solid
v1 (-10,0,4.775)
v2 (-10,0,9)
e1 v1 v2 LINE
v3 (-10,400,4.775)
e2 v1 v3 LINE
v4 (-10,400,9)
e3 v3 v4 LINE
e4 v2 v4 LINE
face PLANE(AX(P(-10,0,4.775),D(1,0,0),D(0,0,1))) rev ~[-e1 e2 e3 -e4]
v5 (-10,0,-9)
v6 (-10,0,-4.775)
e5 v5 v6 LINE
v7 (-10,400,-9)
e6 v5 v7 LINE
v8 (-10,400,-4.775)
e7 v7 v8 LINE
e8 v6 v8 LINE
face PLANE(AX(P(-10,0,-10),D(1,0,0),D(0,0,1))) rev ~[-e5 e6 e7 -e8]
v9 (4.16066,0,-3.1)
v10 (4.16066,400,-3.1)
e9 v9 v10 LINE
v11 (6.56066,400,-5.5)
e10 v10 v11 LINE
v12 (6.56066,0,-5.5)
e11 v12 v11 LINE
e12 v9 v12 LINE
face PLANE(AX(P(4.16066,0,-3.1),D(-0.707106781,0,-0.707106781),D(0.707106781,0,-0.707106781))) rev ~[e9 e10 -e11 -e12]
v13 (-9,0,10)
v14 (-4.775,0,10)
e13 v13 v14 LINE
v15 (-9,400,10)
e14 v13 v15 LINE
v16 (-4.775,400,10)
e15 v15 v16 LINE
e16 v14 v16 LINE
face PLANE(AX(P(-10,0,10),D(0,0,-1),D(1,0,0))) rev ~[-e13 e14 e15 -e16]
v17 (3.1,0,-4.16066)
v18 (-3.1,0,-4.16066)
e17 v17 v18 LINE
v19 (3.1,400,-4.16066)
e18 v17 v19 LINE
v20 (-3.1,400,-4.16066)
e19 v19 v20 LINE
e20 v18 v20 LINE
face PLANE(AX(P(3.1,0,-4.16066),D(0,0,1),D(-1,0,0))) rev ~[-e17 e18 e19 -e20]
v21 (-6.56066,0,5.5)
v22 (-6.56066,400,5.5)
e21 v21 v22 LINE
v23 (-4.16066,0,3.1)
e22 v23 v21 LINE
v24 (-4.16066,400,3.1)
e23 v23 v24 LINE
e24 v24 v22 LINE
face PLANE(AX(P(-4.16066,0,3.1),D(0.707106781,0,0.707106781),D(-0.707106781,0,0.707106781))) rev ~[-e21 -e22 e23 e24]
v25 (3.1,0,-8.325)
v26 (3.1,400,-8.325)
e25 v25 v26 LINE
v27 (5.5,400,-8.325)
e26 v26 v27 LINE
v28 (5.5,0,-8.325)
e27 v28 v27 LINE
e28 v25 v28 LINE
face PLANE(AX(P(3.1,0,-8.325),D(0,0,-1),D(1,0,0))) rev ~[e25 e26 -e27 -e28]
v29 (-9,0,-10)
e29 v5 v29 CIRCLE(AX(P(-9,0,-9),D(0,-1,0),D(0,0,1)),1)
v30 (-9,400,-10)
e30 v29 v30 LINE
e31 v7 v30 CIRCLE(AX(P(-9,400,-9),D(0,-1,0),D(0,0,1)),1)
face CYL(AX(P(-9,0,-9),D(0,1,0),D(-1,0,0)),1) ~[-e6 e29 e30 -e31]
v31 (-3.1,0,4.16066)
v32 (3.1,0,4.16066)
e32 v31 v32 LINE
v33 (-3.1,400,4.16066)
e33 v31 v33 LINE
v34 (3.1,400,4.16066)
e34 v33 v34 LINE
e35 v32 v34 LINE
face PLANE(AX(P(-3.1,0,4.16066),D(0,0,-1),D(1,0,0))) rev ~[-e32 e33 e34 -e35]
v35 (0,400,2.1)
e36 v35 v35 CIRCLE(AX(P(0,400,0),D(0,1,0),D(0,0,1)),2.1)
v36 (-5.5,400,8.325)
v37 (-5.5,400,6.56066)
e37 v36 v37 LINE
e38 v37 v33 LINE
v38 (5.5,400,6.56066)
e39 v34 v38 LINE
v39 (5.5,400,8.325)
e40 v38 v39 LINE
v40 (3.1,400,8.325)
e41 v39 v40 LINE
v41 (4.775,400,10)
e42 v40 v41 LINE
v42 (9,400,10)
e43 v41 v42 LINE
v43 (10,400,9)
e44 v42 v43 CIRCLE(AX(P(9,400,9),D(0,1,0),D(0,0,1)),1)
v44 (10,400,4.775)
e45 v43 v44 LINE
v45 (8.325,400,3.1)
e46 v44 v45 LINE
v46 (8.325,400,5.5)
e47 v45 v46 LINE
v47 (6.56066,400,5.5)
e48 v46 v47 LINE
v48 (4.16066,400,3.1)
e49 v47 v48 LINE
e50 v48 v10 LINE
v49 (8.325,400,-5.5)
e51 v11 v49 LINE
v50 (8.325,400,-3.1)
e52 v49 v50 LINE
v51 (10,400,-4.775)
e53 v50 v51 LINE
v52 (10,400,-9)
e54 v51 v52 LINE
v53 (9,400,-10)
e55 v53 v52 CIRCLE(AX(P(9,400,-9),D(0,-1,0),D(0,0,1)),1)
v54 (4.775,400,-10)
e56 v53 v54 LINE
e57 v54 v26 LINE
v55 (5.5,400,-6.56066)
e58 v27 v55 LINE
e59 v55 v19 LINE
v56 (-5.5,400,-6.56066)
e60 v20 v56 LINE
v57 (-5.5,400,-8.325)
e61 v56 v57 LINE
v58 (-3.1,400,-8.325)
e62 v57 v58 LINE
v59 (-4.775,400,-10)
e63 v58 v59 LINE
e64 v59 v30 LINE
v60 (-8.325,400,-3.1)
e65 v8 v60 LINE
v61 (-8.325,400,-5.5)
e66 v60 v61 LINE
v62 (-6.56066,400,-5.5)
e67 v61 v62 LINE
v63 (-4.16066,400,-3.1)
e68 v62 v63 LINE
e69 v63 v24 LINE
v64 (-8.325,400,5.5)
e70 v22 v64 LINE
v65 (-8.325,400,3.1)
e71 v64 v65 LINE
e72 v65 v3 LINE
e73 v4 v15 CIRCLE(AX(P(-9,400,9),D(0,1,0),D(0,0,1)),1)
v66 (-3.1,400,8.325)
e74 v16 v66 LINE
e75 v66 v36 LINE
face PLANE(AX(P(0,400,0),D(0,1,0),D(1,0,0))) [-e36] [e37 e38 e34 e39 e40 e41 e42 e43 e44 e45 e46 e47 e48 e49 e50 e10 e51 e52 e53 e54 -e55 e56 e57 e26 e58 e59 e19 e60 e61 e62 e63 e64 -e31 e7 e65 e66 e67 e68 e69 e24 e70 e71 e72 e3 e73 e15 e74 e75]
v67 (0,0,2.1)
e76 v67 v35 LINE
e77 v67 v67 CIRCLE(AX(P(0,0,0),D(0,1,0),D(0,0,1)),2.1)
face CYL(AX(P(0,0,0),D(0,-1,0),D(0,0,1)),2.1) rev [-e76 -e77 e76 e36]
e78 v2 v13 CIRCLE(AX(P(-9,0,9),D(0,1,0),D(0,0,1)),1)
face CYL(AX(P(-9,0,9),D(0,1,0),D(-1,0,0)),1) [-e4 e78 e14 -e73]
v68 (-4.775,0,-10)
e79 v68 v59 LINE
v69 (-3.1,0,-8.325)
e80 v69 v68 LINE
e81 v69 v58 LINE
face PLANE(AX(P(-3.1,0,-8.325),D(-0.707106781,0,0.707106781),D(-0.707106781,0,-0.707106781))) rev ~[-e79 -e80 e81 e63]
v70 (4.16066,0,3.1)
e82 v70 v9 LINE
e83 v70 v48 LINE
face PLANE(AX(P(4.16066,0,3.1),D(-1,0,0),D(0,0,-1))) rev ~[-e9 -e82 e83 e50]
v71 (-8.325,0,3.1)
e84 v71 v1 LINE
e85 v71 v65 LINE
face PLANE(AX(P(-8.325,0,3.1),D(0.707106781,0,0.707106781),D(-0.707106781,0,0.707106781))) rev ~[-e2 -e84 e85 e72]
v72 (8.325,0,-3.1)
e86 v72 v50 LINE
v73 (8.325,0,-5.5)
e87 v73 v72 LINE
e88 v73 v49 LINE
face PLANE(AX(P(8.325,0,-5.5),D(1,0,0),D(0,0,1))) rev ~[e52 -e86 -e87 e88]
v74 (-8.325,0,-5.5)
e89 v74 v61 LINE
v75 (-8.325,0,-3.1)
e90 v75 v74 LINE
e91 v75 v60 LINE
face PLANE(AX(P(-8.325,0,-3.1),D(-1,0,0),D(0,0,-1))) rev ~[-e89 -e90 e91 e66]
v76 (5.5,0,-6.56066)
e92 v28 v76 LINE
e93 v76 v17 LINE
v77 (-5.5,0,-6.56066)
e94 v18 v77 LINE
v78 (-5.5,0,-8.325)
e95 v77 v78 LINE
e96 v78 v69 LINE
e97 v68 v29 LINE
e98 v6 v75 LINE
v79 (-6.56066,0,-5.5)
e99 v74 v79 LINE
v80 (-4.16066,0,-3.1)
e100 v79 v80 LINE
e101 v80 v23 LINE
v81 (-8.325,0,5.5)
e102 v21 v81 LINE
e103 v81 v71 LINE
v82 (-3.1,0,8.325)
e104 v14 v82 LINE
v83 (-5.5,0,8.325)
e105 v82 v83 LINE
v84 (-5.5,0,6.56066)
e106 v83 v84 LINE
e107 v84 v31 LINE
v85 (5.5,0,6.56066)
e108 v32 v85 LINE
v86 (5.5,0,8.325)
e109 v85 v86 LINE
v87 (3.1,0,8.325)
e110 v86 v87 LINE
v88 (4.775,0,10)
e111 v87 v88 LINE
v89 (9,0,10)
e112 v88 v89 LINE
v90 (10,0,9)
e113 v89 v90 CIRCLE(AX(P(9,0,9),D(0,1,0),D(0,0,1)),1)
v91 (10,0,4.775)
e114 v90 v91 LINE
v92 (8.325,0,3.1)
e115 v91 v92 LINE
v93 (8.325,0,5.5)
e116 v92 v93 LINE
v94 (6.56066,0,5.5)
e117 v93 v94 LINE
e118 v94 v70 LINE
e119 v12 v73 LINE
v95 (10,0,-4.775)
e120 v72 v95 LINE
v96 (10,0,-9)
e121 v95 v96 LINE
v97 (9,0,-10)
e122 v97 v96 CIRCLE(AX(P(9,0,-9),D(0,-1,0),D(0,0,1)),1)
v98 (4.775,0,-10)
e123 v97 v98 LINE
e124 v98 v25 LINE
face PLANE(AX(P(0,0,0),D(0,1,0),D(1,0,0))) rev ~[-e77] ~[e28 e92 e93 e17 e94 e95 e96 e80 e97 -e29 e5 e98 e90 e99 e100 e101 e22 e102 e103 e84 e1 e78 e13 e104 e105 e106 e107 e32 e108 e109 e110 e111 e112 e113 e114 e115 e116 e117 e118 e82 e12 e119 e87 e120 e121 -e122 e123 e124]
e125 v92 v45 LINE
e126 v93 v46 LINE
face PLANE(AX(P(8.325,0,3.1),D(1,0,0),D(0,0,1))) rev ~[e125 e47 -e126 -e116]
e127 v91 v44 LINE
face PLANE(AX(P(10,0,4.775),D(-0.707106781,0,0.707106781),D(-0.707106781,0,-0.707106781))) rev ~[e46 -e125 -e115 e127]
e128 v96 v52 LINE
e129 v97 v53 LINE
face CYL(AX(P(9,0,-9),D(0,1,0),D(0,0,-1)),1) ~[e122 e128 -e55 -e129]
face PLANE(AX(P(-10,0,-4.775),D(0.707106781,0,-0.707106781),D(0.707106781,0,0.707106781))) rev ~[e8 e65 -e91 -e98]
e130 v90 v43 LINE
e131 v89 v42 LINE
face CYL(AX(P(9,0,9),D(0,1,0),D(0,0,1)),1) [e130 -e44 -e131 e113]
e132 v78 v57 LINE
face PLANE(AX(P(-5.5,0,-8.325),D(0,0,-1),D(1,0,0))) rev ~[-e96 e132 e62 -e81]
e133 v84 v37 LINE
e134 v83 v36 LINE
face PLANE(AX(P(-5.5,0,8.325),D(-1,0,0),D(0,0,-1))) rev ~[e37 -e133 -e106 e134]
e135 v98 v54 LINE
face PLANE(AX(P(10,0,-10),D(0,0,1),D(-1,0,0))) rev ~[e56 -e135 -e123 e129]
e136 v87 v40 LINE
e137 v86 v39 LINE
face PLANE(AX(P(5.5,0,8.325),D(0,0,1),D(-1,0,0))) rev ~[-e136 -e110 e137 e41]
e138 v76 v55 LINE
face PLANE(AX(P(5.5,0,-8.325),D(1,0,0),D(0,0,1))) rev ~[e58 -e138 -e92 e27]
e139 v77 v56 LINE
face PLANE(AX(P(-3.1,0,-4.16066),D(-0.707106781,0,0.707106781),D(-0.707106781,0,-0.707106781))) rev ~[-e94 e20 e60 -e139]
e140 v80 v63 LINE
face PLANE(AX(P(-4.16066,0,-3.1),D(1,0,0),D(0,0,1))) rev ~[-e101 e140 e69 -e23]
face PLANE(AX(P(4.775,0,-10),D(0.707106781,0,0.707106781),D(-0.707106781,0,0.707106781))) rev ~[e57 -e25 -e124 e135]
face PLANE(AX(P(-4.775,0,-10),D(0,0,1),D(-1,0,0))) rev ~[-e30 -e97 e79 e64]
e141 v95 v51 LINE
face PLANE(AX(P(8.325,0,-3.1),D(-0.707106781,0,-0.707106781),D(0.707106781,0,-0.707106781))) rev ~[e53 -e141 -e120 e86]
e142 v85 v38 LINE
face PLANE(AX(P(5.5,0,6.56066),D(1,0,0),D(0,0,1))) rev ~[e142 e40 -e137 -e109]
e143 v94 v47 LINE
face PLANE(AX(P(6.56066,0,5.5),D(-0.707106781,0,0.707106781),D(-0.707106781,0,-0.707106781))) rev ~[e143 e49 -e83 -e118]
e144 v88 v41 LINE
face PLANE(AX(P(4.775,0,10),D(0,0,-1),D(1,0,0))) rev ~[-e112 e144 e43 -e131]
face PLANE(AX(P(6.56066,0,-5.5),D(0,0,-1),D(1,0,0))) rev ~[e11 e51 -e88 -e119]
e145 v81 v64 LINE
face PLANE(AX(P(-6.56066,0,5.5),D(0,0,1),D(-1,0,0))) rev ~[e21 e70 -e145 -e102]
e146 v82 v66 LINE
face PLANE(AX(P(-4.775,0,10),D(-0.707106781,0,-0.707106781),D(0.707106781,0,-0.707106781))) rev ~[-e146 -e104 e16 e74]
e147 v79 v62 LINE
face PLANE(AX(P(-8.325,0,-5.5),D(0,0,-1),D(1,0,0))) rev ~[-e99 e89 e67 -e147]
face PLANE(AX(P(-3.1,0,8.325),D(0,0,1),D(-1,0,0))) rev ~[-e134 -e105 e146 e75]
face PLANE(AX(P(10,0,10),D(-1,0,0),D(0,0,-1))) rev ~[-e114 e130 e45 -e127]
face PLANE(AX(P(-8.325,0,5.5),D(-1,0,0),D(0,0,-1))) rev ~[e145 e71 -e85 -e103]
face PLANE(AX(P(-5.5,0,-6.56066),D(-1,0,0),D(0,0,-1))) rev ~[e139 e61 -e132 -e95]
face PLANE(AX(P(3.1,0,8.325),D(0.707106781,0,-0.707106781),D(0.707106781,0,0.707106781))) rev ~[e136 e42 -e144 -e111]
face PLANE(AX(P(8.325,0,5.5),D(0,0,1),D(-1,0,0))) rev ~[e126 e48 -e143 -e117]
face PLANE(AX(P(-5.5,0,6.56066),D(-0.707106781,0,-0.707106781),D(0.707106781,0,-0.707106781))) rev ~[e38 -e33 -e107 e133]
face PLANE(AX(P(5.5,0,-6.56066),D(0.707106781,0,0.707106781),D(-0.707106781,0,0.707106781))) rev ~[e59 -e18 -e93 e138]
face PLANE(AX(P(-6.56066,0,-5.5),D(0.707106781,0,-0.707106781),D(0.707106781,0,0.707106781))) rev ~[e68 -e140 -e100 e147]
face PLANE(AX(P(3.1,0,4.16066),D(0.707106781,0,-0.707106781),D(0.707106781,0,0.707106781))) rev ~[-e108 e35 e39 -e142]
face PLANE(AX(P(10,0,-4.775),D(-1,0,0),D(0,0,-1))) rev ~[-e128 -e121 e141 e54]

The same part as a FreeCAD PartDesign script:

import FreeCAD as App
import Part
import Sketcher
Q = App.Units.Quantity


def edges_at(feature, points):
    """Names of the edges that pass closest to the given points."""
    edges = feature.Shape.Edges
    near = lambda p: min(range(len(edges)), key=lambda i: edges[i].distToShape(Part.Vertex(*p))[0])
    return sorted({f"Edge{near(p) + 1}" for p in points})


def add_polygon(sketch, points):
    """Adds a closed chain of lines whose ends are joined by coincident constraints."""
    first, n = sketch.GeometryCount, len(points)
    for a, b in zip(points, points[1:] + points[:1]):
        sketch.addGeometry(Part.LineSegment(App.Vector(*a, 0), App.Vector(*b, 0)), False)
    for i in range(n):
        sketch.addConstraint(Sketcher.Constraint("Coincident", first + i, 2, first + (i + 1) % n, 1))

doc = App.newDocument("Part")
params = doc.addObject("Spreadsheet::Sheet", "Params")
for row, (alias, value) in enumerate([
    ("sketch1_diameter", "4.2 mm"),
    ("sketch1_width", "2.4 mm"),
    ("sketch1_width2", "6.2 mm"),
    ("pad1_length", "400 mm"),
    ("fillet_radius", "1 mm"),
], start=1):
    params.set(f"A{row}", alias)
    params.set(f"B{row}", "=" + value)
    params.setAlias(f"B{row}", alias)

body = doc.addObject("PartDesign::Body", "Body")

sketch1 = body.newObject("Sketcher::SketchObject", "Sketch")
sketch1.AttachmentSupport = (doc.getObject("XZ_Plane"), [""])
sketch1.MapMode = "FlatFace"
add_polygon(sketch1, [(-8.3, -3.1), (-8.3, -5.5), (-6.6, -5.5), (-4.2, -3.1), (-4.2, 3.1), (-6.6, 5.5), (-8.3, 5.5), (-8.3, 3.1), (-10, 4.8), (-10, 10), (-4.8, 10), (-3.1, 8.3), (-5.5, 8.3), (-5.5, 6.6), (-3.1, 4.2), (3.1, 4.2), (5.5, 6.6), (5.5, 8.3), (3.1, 8.3), (4.8, 10), (10, 10), (10, 4.8), (8.3, 3.1), (8.3, 5.5), (6.6, 5.5), (4.2, 3.1), (4.2, -3.1), (6.6, -5.5), (8.3, -5.5), (8.3, -3.1), (10, -4.8), (10, -10), (4.8, -10), (3.1, -8.3), (5.5, -8.3), (5.5, -6.6), (3.1, -4.2), (-3.1, -4.2), (-5.5, -6.6), (-5.5, -8.3), (-3.1, -8.3), (-4.8, -10), (-10, -10), (-10, -4.8)])
sketch1.addGeometry(Part.Circle(App.Vector(0, 0, 0), App.Vector(0, 0, 1), 2.1), False)
sketch1.addConstraint([
    Sketcher.Constraint("Vertical", 0),
    Sketcher.Constraint("Horizontal", 1),
    Sketcher.Constraint("Vertical", 3),
    Sketcher.Constraint("Horizontal", 5),
    Sketcher.Constraint("Vertical", 6),
    Sketcher.Constraint("Vertical", 8),
    Sketcher.Constraint("Horizontal", 9),
    Sketcher.Constraint("Horizontal", 11),
    Sketcher.Constraint("Vertical", 12),
    Sketcher.Constraint("Horizontal", 14),
    Sketcher.Constraint("Vertical", 16),
    Sketcher.Constraint("Horizontal", 17),
    Sketcher.Constraint("Horizontal", 19),
    Sketcher.Constraint("Vertical", 20),
    Sketcher.Constraint("Vertical", 22),
    Sketcher.Constraint("Horizontal", 23),
    Sketcher.Constraint("Vertical", 25),
    Sketcher.Constraint("Horizontal", 27),
    Sketcher.Constraint("Vertical", 28),
    Sketcher.Constraint("Vertical", 30),
    Sketcher.Constraint("Horizontal", 31),
    Sketcher.Constraint("Horizontal", 33),
    Sketcher.Constraint("Vertical", 34),
    Sketcher.Constraint("Horizontal", 36),
    Sketcher.Constraint("Vertical", 38),
    Sketcher.Constraint("Horizontal", 39),
    Sketcher.Constraint("Horizontal", 41),
    Sketcher.Constraint("Vertical", 42),
    Sketcher.Constraint("Coincident", 44, 3, -1, 1),
    Sketcher.Constraint("Symmetric", 0, 2, 22, 2, -1, 1),
    Sketcher.Constraint("Symmetric", 2, 2, 24, 2, -1, 1),
    Sketcher.Constraint("Symmetric", 4, 2, 26, 2, -1, 1),
    Sketcher.Constraint("Symmetric", 6, 2, 28, 2, -1, 1),
    Sketcher.Constraint("Symmetric", 7, 2, 29, 2, -1, 1),
    Sketcher.Constraint("Symmetric", 9, 2, 31, 2, -1, 1),
    Sketcher.Constraint("Symmetric", 10, 2, 32, 2, -1, 1),
    Sketcher.Constraint("Symmetric", 12, 2, 34, 2, -1, 1),
    Sketcher.Constraint("Symmetric", 13, 2, 35, 2, -1, 1),
    Sketcher.Constraint("Symmetric", 15, 2, 37, 2, -1, 1),
    Sketcher.Constraint("Symmetric", 17, 2, 39, 2, -1, 1),
    Sketcher.Constraint("Symmetric", 18, 2, 40, 2, -1, 1),
    Sketcher.Constraint("Symmetric", 20, 2, 42, 2, -1, 1),
    Sketcher.Constraint("Symmetric", 12, 2, 15, 2, -2),
    Sketcher.Constraint("Symmetric", 10, 2, 17, 2, -2),
    Sketcher.Constraint("Symmetric", 9, 2, 18, 2, -2),
    Sketcher.Constraint("Symmetric", 7, 2, 20, 2, -2),
    Sketcher.Constraint("Symmetric", 6, 2, 21, 2, -2),
    Sketcher.Constraint("Symmetric", 4, 2, 23, 2, -2),
    Sketcher.Constraint("Perpendicular", 2, 4),
    Sketcher.Constraint("Parallel", 4, 7),
    Sketcher.Constraint("Parallel", 7, 10),
    Sketcher.Constraint("Parallel", 10, 13),
    Sketcher.Constraint("Perpendicular", 13, 15),
    Sketcher.Constraint("Parallel", 15, 18),
    Sketcher.Constraint("Parallel", 21, 24),
    Sketcher.Constraint("Perpendicular", 24, 26),
    Sketcher.Constraint("Perpendicular", 35, 37),
    Sketcher.Constraint("Parallel", 40, 43),
    Sketcher.Constraint("Horizontal", 3, 2, 6, 2),
    Sketcher.Constraint("Vertical", 10, 2, 13, 2),
    Sketcher.Constraint("Equal", 39, 0),
    Sketcher.Constraint("Equal", 36, 3),
    Sketcher.Constraint("Equal", 41, 8),
    Sketcher.Constraint("Equal", 27, 12),
    Sketcher.Constraint("Equal", 7, 10),
    Sketcher.Constraint("Diameter", 44, Q("4.2 mm")),
    Sketcher.Constraint("DistanceX", 11, 2, 11, 1, Q("2.4 mm")),
    Sketcher.Constraint("DistanceX", 14, 1, 14, 2, Q("6.2 mm")),
    Sketcher.Constraint("DistanceX", 7, 2, -1, 1, Q("10 mm")),
    Sketcher.Constraint("DistanceX", 9, 1, 9, 2, Q("5.225 mm")),
    Sketcher.Constraint("DistanceX", 1, 1, 1, 2, Q("1.76434 mm")),
])
sketch1.setExpression("Constraints[109]", "Params.sketch1_diameter")
sketch1.setExpression("Constraints[110]", "Params.sketch1_width")
sketch1.setExpression("Constraints[111]", "Params.sketch1_width2")
pad1 = body.newObject("PartDesign::Pad", "Pad")
pad1.Profile = sketch1
pad1.setExpression("Length", "Params.pad1_length")
pad1.Reversed = True
doc.recompute()

fillet = body.newObject("PartDesign::Fillet", "Fillet")
fillet.Base = (pad1, edges_at(pad1, [
    (10, 200, -10),
    (10, 200, 10),
    (-10, 200, 10),
    (-10, 200, -10),
]))
fillet.setExpression("Radius", "Params.fillet_radius")

doc.recompute()
